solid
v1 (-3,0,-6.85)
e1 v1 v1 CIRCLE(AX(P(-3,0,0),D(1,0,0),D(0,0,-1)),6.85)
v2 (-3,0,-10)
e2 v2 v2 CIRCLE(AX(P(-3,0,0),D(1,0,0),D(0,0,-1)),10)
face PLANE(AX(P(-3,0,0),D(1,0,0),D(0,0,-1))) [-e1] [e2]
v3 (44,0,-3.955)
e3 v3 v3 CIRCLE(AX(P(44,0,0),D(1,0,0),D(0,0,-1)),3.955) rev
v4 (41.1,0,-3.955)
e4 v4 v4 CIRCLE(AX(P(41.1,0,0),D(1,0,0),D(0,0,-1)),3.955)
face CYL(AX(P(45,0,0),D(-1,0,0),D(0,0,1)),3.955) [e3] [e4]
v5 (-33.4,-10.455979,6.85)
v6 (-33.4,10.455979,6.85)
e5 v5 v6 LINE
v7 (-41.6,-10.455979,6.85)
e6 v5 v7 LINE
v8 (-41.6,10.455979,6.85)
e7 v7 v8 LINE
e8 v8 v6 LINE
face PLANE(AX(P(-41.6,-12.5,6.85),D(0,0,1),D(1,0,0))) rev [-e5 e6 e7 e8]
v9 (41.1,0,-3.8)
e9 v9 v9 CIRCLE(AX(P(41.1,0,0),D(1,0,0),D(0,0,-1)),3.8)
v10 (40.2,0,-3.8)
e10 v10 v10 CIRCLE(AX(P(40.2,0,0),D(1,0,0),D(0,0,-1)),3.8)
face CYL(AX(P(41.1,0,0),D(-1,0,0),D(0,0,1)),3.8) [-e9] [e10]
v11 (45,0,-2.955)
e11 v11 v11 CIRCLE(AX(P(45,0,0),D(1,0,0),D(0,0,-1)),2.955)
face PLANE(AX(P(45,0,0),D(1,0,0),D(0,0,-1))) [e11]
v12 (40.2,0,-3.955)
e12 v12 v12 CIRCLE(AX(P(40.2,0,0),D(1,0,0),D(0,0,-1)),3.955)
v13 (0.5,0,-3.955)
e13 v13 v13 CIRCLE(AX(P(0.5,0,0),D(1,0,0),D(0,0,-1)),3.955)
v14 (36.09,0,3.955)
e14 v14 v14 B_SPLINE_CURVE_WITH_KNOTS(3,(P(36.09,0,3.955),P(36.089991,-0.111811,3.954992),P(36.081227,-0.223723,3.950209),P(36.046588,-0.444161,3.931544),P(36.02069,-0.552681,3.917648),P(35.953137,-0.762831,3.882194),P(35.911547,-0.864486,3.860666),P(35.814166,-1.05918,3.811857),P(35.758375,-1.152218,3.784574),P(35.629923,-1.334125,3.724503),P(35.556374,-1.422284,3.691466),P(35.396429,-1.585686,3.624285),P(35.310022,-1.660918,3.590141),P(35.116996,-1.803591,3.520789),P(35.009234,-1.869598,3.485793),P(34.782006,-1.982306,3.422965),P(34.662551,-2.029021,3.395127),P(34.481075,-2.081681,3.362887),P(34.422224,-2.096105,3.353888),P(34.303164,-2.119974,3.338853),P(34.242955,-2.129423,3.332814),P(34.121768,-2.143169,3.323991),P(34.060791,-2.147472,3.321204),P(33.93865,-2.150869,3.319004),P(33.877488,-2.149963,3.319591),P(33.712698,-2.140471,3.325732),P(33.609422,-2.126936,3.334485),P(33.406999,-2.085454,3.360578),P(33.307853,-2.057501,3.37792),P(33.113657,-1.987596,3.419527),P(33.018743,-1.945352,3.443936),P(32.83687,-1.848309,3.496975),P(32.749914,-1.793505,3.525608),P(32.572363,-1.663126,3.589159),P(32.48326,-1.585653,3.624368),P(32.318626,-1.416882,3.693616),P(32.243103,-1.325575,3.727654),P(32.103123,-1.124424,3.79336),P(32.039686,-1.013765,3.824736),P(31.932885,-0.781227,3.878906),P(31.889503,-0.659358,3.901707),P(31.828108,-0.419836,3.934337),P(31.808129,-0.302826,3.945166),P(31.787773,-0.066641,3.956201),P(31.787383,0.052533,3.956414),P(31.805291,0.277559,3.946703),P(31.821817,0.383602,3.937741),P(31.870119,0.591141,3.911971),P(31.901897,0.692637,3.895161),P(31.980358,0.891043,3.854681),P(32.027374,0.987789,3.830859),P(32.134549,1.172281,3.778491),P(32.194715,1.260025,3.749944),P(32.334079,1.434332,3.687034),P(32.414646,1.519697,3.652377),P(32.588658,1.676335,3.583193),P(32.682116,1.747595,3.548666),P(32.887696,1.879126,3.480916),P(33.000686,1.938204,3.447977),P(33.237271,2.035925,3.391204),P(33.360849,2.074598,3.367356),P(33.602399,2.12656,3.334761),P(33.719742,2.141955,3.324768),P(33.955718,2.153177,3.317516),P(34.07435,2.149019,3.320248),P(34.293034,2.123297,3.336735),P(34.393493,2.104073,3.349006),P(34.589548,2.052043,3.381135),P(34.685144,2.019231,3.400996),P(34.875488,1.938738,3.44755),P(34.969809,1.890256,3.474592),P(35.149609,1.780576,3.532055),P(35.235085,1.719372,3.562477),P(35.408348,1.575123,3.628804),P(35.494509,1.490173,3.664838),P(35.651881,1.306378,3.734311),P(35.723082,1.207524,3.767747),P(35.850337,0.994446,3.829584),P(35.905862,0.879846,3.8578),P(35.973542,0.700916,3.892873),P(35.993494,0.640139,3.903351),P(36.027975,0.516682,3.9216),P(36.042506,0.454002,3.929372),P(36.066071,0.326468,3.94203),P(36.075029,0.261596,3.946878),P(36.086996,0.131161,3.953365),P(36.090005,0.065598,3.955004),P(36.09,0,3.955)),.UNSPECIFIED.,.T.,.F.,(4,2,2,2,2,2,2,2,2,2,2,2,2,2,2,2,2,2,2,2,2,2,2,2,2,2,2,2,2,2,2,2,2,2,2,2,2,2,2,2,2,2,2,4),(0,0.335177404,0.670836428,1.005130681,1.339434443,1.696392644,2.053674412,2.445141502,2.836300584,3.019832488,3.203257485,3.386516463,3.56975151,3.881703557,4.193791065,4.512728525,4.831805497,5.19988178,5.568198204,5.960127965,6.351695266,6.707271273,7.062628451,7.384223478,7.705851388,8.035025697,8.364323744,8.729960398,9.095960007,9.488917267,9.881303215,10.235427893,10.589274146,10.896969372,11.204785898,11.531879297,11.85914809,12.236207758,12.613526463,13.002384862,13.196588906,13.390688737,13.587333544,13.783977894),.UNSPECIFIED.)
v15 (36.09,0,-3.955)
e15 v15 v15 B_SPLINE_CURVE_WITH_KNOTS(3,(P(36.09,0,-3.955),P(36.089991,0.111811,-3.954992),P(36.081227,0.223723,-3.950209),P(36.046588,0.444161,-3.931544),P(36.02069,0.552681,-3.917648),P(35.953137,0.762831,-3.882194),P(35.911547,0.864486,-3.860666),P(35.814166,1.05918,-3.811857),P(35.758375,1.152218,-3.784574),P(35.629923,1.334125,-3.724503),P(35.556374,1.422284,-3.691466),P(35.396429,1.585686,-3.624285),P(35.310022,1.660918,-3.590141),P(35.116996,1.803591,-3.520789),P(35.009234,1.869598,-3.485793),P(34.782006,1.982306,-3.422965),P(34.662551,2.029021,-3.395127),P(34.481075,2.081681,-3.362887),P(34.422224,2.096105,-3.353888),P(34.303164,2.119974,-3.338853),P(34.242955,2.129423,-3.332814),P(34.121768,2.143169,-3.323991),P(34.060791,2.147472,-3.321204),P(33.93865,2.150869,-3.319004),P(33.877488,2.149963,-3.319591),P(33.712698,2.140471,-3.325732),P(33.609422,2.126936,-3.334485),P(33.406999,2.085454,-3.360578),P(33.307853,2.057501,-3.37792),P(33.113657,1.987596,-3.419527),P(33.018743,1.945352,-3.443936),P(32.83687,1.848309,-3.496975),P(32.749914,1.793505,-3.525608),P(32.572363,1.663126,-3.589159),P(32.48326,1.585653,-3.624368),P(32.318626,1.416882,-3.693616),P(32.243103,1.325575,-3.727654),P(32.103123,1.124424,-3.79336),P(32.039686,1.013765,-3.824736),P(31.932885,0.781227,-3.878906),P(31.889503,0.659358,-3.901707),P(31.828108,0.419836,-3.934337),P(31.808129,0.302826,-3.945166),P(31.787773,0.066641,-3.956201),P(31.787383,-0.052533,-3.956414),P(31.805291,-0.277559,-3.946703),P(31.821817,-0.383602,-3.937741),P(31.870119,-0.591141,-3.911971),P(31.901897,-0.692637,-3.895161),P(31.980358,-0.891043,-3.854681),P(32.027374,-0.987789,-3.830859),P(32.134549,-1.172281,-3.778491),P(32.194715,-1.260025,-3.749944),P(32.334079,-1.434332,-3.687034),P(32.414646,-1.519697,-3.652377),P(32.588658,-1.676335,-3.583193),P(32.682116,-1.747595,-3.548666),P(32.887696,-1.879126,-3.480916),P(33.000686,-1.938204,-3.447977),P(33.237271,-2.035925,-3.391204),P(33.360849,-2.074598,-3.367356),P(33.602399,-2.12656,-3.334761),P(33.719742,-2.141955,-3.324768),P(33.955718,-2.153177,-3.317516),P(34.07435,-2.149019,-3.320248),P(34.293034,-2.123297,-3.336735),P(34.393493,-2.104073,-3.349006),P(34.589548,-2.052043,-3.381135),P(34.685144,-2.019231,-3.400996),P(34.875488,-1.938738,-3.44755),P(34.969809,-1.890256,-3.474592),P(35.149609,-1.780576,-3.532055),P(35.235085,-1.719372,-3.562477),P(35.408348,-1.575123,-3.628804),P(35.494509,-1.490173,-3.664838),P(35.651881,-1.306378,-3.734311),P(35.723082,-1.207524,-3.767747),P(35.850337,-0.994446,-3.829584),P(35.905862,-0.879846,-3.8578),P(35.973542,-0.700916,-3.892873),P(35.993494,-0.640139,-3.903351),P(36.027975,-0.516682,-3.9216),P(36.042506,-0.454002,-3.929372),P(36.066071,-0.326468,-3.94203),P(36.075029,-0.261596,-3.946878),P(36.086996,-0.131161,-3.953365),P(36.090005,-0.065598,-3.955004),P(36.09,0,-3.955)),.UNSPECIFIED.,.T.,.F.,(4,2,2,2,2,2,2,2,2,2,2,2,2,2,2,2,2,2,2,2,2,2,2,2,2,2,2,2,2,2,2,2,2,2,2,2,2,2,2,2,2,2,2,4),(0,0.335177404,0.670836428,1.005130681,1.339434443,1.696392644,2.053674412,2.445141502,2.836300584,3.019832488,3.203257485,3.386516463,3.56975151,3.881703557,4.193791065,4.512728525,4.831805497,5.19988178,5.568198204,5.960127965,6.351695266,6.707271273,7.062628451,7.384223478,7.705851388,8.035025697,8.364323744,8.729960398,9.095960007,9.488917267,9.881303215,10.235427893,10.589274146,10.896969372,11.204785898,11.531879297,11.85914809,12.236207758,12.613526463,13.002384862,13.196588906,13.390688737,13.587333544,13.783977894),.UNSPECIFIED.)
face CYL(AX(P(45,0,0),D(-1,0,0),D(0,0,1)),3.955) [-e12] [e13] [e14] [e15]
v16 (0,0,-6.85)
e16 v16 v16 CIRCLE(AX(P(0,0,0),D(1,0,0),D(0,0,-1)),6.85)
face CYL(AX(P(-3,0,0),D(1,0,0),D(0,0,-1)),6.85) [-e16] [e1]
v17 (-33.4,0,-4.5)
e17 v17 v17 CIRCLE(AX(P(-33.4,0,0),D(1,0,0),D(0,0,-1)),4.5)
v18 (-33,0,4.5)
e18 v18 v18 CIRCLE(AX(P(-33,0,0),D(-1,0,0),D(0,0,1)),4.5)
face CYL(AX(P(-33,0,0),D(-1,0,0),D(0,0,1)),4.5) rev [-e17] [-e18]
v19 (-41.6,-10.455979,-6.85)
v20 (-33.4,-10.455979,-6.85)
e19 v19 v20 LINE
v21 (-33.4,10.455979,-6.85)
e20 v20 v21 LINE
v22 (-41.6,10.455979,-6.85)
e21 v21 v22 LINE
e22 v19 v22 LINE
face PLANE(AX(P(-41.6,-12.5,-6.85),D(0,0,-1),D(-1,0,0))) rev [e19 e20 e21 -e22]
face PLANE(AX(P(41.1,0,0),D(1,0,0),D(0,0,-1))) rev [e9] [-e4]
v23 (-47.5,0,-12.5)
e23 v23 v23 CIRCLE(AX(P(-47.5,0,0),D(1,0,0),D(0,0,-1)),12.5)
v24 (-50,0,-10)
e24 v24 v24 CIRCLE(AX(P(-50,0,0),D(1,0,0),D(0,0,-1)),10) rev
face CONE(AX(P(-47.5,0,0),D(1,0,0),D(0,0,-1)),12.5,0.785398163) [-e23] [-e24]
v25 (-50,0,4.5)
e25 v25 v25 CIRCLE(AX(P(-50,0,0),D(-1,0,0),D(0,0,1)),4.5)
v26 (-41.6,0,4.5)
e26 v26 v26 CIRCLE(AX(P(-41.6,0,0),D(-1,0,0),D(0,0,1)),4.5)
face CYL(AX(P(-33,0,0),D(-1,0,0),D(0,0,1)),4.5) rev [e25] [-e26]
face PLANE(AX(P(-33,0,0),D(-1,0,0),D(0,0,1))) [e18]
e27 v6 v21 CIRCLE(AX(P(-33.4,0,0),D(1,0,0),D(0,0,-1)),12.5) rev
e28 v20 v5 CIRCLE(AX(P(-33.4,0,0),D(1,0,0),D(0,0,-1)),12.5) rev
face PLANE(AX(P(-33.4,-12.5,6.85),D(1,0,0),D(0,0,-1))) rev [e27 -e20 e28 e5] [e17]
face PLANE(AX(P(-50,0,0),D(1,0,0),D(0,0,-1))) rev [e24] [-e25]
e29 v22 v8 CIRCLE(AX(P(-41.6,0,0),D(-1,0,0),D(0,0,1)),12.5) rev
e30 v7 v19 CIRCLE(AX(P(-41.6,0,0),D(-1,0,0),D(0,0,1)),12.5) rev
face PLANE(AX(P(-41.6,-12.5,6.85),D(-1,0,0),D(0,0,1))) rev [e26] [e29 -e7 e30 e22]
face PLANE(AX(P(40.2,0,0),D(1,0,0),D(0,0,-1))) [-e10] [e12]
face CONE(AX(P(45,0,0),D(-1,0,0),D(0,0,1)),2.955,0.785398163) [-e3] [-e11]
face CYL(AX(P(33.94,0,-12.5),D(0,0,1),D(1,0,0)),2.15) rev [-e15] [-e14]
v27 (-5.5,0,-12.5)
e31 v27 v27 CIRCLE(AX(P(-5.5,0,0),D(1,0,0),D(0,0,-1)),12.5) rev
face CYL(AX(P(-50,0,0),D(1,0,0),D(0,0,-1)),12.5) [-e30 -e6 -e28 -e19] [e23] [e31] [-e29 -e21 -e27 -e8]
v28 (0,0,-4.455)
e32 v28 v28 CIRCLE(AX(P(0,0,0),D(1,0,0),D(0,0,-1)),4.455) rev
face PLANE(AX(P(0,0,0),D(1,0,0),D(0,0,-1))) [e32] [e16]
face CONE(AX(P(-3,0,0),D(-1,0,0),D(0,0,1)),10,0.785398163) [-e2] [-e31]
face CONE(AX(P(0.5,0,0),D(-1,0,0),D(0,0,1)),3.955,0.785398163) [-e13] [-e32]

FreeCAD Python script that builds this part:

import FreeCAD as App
import Part
import Sketcher

V = App.Vector


def edges_at(feature, points):
    """Names of the edges that pass closest to the given points."""
    edges = feature.Shape.Edges
    near = lambda p: min(range(len(edges)), key=lambda i: edges[i].distToShape(Part.Vertex(*p))[0])
    return sorted({f"Edge{near(p) + 1}" for p in points})

doc = App.newDocument("Part")
body = doc.addObject("PartDesign::Body", "Body")

# Sketch on YZ plane
sketch1 = body.newObject("Sketcher::SketchObject", "Sketch")
sketch1.AttachmentSupport = (doc.getObject("YZ_Plane"), [""])
sketch1.MapMode = "FlatFace"
sketch1.addGeometry(Part.Circle(V(0, 0, 0), V(0, 0, 1), 12.5), False)
sketch1.addConstraint(Sketcher.Constraint("Coincident", 0, 3, -1, 1))
sketch1.addConstraint(Sketcher.Constraint("Diameter", 0, 25.0))
pad1 = body.newObject("PartDesign::Pad", "Pad")
pad1.Profile = sketch1
pad1.Length = 50
pad1.Reversed = True

# Sketch on YZ plane
sketch2 = body.newObject("Sketcher::SketchObject", "Sketch001")
sketch2.AttachmentSupport = (doc.getObject("YZ_Plane"), [""])
sketch2.MapMode = "FlatFace"
sketch2.addGeometry(Part.Circle(V(0, 0, 0), V(0, 0, 1), 12.5), False)
sketch2.addGeometry(Part.Circle(V(0, 0, 0), V(0, 0, 1), 6.85), False)
sketch2.addConstraint(Sketcher.Constraint("Coincident", 0, 3, -1, 1))
sketch2.addConstraint(Sketcher.Constraint("Coincident", 1, 3, -1, 1))
sketch2.addConstraint(Sketcher.Constraint("Diameter", 0, 25.0))
sketch2.addConstraint(Sketcher.Constraint("Diameter", 1, 13.7))
pocket1 = body.newObject("PartDesign::Pocket", "Pocket")
pocket1.Profile = sketch2
pocket1.Length = 3

# Sketch on YZ plane
sketch3 = body.newObject("Sketcher::SketchObject", "Sketch002")
sketch3.AttachmentSupport = (doc.getObject("YZ_Plane"), [""])
sketch3.MapMode = "FlatFace"
sketch3.addGeometry(Part.Circle(V(0, 0, 0), V(0, 0, 1), 3.955), False)
sketch3.addConstraint(Sketcher.Constraint("Coincident", 0, 3, -1, 1))
sketch3.addConstraint(Sketcher.Constraint("Diameter", 0, 7.91))
pad2 = body.newObject("PartDesign::Pad", "Pad001")
pad2.Profile = sketch3
pad2.Length = 45

# Sketch on XY plane
sketch4 = body.newObject("Sketcher::SketchObject", "Sketch003")
sketch4.AttachmentSupport = (doc.getObject("XY_Plane"), [""])
sketch4.MapMode = "FlatFace"
sketch4.addGeometry(Part.Circle(V(33.94, 0, 0), V(0, 0, 1), 2.15), False)
sketch4.addConstraint(Sketcher.Constraint("PointOnObject", 0, 3, -1))
sketch4.addConstraint(Sketcher.Constraint("Diameter", 0, 4.3))
sketch4.addConstraint(Sketcher.Constraint("DistanceX", -1, 1, 0, 3, 33.94))
pocket2 = body.newObject("PartDesign::Pocket", "Pocket001")
pocket2.Profile = sketch4
pocket2.Type = "ThroughAll"
pocket2.Midplane = True

# Sketch on YZ plane
sketch5 = body.newObject("Sketcher::SketchObject", "Sketch004")
sketch5.AttachmentSupport = (doc.getObject("YZ_Plane"), [""])
sketch5.MapMode = "FlatFace"
sketch5.AttachmentOffset = App.Placement(V(0, 0, 40.2), App.Rotation())
sketch5.addGeometry(Part.Circle(V(0, 0, 0), V(0, 0, 1), 3.97), False)
sketch5.addGeometry(Part.Circle(V(0, 0, 0), V(0, 0, 1), 3.8), False)
sketch5.addConstraint(Sketcher.Constraint("Coincident", 0, 3, -1, 1))
sketch5.addConstraint(Sketcher.Constraint("Coincident", 1, 3, -1, 1))
sketch5.addConstraint(Sketcher.Constraint("Diameter", 1, 7.6))
sketch5.addConstraint(Sketcher.Constraint("Diameter", 0, 7.94))
pocket3 = body.newObject("PartDesign::Pocket", "Pocket002")
pocket3.Profile = sketch5
pocket3.Length = 0.9
pocket3.Reversed = True

# Sketch on YZ plane
sketch6 = body.newObject("Sketcher::SketchObject", "Sketch005")
sketch6.AttachmentSupport = (doc.getObject("YZ_Plane"), [""])
sketch6.MapMode = "FlatFace"
sketch6.AttachmentOffset = App.Placement(V(0, 0, -50), App.Rotation())
sketch6.addGeometry(Part.Circle(V(0, 0, 0), V(0, 0, 1), 4), False)
sketch6.addConstraint(Sketcher.Constraint("Coincident", 0, 3, -1, 1))
sketch6.addConstraint(Sketcher.Constraint("Diameter", 0, 8.0))
pocket4 = body.newObject("PartDesign::Pocket", "Pocket003")
pocket4.Profile = sketch6
pocket4.Length = 20
pocket4.Reversed = True
doc.recompute()

chamfer = body.newObject("PartDesign::Chamfer", "Chamfer")
chamfer.Base = (pocket4, edges_at(pocket4, [(-50, 0, 12.5)]))
chamfer.Size = 2.5
doc.recompute()

chamfer2 = body.newObject("PartDesign::Chamfer", "Chamfer001")
chamfer2.Base = (chamfer, edges_at(chamfer, [(-3, 0, 12.5)]))
chamfer2.Size = 2.5
doc.recompute()

chamfer3 = body.newObject("PartDesign::Chamfer", "Chamfer002")
chamfer3.Base = (chamfer2, edges_at(chamfer2, [(45, 0, 3.955)]))
chamfer3.Size = 1

# Sketch on YZ plane
sketch7 = body.newObject("Sketcher::SketchObject", "Sketch006")
sketch7.AttachmentSupport = (doc.getObject("YZ_Plane"), [""])
sketch7.MapMode = "FlatFace"
sketch7.AttachmentOffset = App.Placement(V(0, 0, -50), App.Rotation())
sketch7.addGeometry(Part.Circle(V(0, 0, 0), V(0, 0, 1), 8.96309), False)
sketch7.addConstraint(Sketcher.Constraint("Coincident", 0, 3, -1, 1))
sketch7.addConstraint(Sketcher.Constraint("Diameter", 0, 17.92618))
pad3 = body.newObject("PartDesign::Pad", "Pad002")
pad3.Profile = sketch7
pad3.Length = 35

# Sketch on YZ plane
sketch8 = body.newObject("Sketcher::SketchObject", "Sketch007")
sketch8.AttachmentSupport = (doc.getObject("YZ_Plane"), [""])
sketch8.MapMode = "FlatFace"
sketch8.AttachmentOffset = App.Placement(V(0, 0, -50), App.Rotation())
sketch8.addGeometry(Part.Circle(V(0, 0, 0), V(0, 0, 1), 9.5), False)
sketch8.addGeometry(Part.Circle(V(0, 0, 0), V(0, 0, 1), 4.5), False)
sketch8.addConstraint(Sketcher.Constraint("Coincident", 0, 3, -1, 1))
sketch8.addConstraint(Sketcher.Constraint("Coincident", 1, 3, -1, 1))
sketch8.addConstraint(Sketcher.Constraint("Diameter", 0, 19.0))
sketch8.addConstraint(Sketcher.Constraint("Diameter", 1, 9.0))
pad4 = body.newObject("PartDesign::Pad", "Pad003")
pad4.Profile = sketch8
pad4.Length = 9

# Sketch on XZ plane
sketch9 = body.newObject("Sketcher::SketchObject", "Sketch008")
sketch9.AttachmentSupport = (doc.getObject("XZ_Plane"), [""])
sketch9.MapMode = "FlatFace"
sketch9.addGeometry(Part.LineSegment(V(-41.6, -6.85, 0), V(-41.6, 6.85, 0)), False)
sketch9.addGeometry(Part.LineSegment(V(-41.6, 6.85, 0), V(-33.4, 6.85, 0)), False)
sketch9.addGeometry(Part.LineSegment(V(-33.4, 6.85, 0), V(-33.4, -6.85, 0)), False)
sketch9.addGeometry(Part.LineSegment(V(-33.4, -6.85, 0), V(-41.6, -6.85, 0)), False)
sketch9.addConstraint(Sketcher.Constraint("Coincident", 0, 2, 1, 1))
sketch9.addConstraint(Sketcher.Constraint("Coincident", 1, 2, 2, 1))
sketch9.addConstraint(Sketcher.Constraint("Coincident", 2, 2, 3, 1))
sketch9.addConstraint(Sketcher.Constraint("Coincident", 3, 2, 0, 1))
sketch9.addConstraint(Sketcher.Constraint("Vertical", 0))
sketch9.addConstraint(Sketcher.Constraint("Horizontal", 1))
sketch9.addConstraint(Sketcher.Constraint("Vertical", 2))
sketch9.addConstraint(Sketcher.Constraint("Horizontal", 3))
sketch9.addConstraint(Sketcher.Constraint("DistanceX", 1, 1, 1, 2, 8.2))
sketch9.addConstraint(Sketcher.Constraint("DistanceY", 0, 1, 0, 2, 13.7))
sketch9.addConstraint(Sketcher.Constraint("DistanceX", 0, 2, -1, 1, 41.6))
sketch9.addConstraint(Sketcher.Constraint("DistanceY", -1, 1, 0, 2, 6.85))
pocket5 = body.newObject("PartDesign::Pocket", "Pocket004")
pocket5.Profile = sketch9
pocket5.Type = "ThroughAll"
pocket5.Midplane = True

# Sketch on YZ plane
sketch10 = body.newObject("Sketcher::SketchObject", "Sketch009")
sketch10.AttachmentSupport = (doc.getObject("YZ_Plane"), [""])
sketch10.MapMode = "FlatFace"
sketch10.AttachmentOffset = App.Placement(V(0, 0, -50), App.Rotation())
sketch10.addGeometry(Part.Circle(V(0, 0, 0), V(0, 0, 1), 4.5), False)
sketch10.addConstraint(Sketcher.Constraint("Coincident", 0, 3, -1, 1))
sketch10.addConstraint(Sketcher.Constraint("Diameter", 0, 9.0))
pocket6 = body.newObject("PartDesign::Pocket", "Pocket005")
pocket6.Profile = sketch10
pocket6.Length = 17
pocket6.Reversed = True
doc.recompute()

chamfer4 = body.newObject("PartDesign::Chamfer", "Chamfer003")
chamfer4.Base = (pocket6, edges_at(pocket6, [(0, 0, 3.955)]))
chamfer4.Size = 0.5

doc.recompute()
